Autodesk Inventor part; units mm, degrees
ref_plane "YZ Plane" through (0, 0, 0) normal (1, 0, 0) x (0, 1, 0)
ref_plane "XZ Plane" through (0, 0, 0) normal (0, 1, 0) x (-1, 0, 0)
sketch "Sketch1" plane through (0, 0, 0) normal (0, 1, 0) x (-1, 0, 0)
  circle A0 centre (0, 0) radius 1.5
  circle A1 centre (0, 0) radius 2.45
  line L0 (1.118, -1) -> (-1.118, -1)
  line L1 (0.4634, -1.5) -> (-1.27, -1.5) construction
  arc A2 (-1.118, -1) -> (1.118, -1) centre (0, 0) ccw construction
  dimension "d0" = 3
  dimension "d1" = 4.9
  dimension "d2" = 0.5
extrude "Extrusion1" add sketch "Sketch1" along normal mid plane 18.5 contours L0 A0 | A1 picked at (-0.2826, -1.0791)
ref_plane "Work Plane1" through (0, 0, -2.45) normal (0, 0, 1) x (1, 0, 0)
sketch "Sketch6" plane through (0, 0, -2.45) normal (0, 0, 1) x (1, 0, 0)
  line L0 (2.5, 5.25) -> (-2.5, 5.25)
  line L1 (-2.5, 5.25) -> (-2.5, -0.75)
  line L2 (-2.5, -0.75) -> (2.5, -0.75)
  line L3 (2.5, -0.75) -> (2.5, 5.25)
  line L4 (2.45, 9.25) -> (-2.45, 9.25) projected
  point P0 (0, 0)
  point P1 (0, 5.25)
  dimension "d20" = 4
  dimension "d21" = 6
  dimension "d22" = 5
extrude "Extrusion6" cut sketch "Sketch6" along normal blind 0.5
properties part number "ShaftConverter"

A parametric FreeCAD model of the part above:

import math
import FreeCAD as App
import Part
import Sketcher

V = App.Vector


def add_polygon(sketch, points):
    """Adds a closed chain of lines whose ends are joined by coincident constraints."""
    first, n = sketch.GeometryCount, len(points)
    for a, b in zip(points, points[1:] + points[:1]):
        sketch.addGeometry(Part.LineSegment(App.Vector(*a, 0), App.Vector(*b, 0)), False)
    for i in range(n):
        sketch.addConstraint(Sketcher.Constraint("Coincident", first + i, 2, first + (i + 1) % n, 1))

doc = App.newDocument("Part")
body = doc.addObject("PartDesign::Body", "Body")

# Sketch on XZ plane
sketch1 = body.newObject("Sketcher::SketchObject", "Sketch")
sketch1.AttachmentSupport = (doc.getObject("XZ_Plane"), [""])
sketch1.MapMode = "FlatFace"
sketch1.addGeometry([
    Part.Circle(V(0, 0, 0), V(0, 0, 1), 2.5),
    Part.LineSegment(V(-1.1, -1, 0), V(1.1, -1, 0)),
    Part.ArcOfCircle(Part.Circle(V(0, 0, 0), V(0, 0, 1), 1.5), math.radians(-42), math.radians(222)),
], False)
sketch1.addConstraint([
    Sketcher.Constraint("Coincident", 1, 1, 2, 2),
    Sketcher.Constraint("Coincident", 2, 1, 1, 2),
    Sketcher.Constraint("Horizontal", 1),
    Sketcher.Constraint("Coincident", 0, 3, -1, 1),
    Sketcher.Constraint("Coincident", 2, 3, -1, 1),
    Sketcher.Constraint("Diameter", 0, 4.9),
    Sketcher.Constraint("Radius", 2, 1.5),
    Sketcher.Constraint("DistanceY", 1, 1, -1, 1, 1.0),
])
pad1 = body.newObject("PartDesign::Pad", "Pad")
pad1.Profile = sketch1
pad1.Length = 18.5
pad1.Midplane = True

# Sketch on XY plane
sketch2 = body.newObject("Sketcher::SketchObject", "Sketch001")
sketch2.AttachmentSupport = (doc.getObject("XY_Plane"), [""])
sketch2.MapMode = "FlatFace"
sketch2.AttachmentOffset = App.Placement(V(0, 0, -2.45), App.Rotation())
add_polygon(sketch2, [(2, -1), (2, 5), (-2, 5), (-2, -1)])  # lines 0-3
sketch2.addConstraint([
    Sketcher.Constraint("Vertical", 0),
    Sketcher.Constraint("Horizontal", 1),
    Sketcher.Constraint("Vertical", 2),
    Sketcher.Constraint("Horizontal", 3),
    Sketcher.Constraint("DistanceX", 1, 2, 1, 1, 5.0),
    Sketcher.Constraint("DistanceY", 0, 1, 0, 2, 6.0),
    Sketcher.Constraint("DistanceX", -1, 1, 0, 2, 2.5),
    Sketcher.Constraint("DistanceY", -1, 1, 0, 2, 5.25),
])
pocket1 = body.newObject("PartDesign::Pocket", "Pocket")
pocket1.Profile = sketch2
pocket1.Length = 0.5
pocket1.Reversed = True

doc.recompute()
